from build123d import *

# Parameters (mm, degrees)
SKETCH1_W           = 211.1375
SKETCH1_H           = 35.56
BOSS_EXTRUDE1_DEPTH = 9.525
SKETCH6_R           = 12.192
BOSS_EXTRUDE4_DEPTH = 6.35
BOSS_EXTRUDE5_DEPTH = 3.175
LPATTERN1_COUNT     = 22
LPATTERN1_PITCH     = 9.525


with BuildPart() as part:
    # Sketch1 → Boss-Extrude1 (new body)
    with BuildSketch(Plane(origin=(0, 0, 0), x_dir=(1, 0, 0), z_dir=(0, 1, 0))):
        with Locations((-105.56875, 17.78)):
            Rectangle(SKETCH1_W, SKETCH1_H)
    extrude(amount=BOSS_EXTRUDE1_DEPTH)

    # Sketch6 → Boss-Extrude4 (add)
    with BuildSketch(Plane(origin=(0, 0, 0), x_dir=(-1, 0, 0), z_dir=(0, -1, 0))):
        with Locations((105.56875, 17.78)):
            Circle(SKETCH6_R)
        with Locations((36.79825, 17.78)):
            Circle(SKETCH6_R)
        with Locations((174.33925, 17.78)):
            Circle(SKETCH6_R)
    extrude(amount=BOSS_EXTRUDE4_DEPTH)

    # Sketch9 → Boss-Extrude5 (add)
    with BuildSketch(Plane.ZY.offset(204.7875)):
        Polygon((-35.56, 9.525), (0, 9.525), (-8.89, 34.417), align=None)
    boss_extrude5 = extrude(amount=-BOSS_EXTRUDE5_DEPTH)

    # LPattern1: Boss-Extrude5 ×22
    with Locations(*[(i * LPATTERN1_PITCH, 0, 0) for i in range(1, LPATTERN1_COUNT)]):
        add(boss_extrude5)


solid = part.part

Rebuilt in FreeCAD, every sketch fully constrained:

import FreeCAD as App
import Part
import Sketcher

V = App.Vector
Q = App.Units.Quantity


def add_polygon(sketch, points):
    """Adds a closed chain of lines whose ends are joined by coincident constraints."""
    first, n = sketch.GeometryCount, len(points)
    for a, b in zip(points, points[1:] + points[:1]):
        sketch.addGeometry(Part.LineSegment(App.Vector(*a, 0), App.Vector(*b, 0)), False)
    for i in range(n):
        sketch.addConstraint(Sketcher.Constraint("Coincident", first + i, 2, first + (i + 1) % n, 1))

doc = App.newDocument("Part")
body = doc.addObject("PartDesign::Body", "Body")

# Sketch on XZ plane
sketch1 = body.newObject("Sketcher::SketchObject", "Sketch")
sketch1.AttachmentSupport = (doc.getObject("XZ_Plane"), [""])
sketch1.MapMode = "FlatFace"
add_polygon(sketch1, [(-211, -36), (-211, 0), (0, 0), (0, -36)])  # lines 0-3
sketch1.addConstraint([
    Sketcher.Constraint("Vertical", 0),
    Sketcher.Constraint("Horizontal", 1),
    Sketcher.Constraint("Vertical", 2),
    Sketcher.Constraint("Horizontal", 3),
    Sketcher.Constraint("Coincident", 1, 2, -1, 1),
    Sketcher.Constraint("DistanceY", 0, 1, 0, 2, Q("1.4 in")),
    Sketcher.Constraint("DistanceX", 1, 1, 1, 2, Q("8.3125 in")),
])
pad1 = body.newObject("PartDesign::Pad", "Pad")
pad1.Profile = sketch1
pad1.Length = Q("0.375 in")
pad1.Reversed = True

# Sketch on XZ plane
sketch2 = body.newObject("Sketcher::SketchObject", "Sketch001")
sketch2.AttachmentSupport = (doc.getObject("XZ_Plane"), [""])
sketch2.MapMode = "FlatFace"
sketch2.addGeometry([
    Part.Circle(V(-106, -18, 0), V(0, 0, 1), 12),
    Part.Circle(V(-37, -18, 0), V(0, 0, 1), 12),
    Part.Circle(V(-174, -18, 0), V(0, 0, 1), 12),
], False)
sketch2.addConstraint([
    Sketcher.Constraint("Equal", 0, 1),
    Sketcher.Constraint("Equal", 1, 2),
    Sketcher.Constraint("Horizontal", 0, 3, 1, 3),
    Sketcher.Constraint("Horizontal", 1, 3, 2, 3),
    Sketcher.Constraint("Diameter", 0, Q("0.96 in")),
    Sketcher.Constraint("DistanceY", 0, 3, -1, 1, Q("0.7 in")),
    Sketcher.Constraint("DistanceX", 0, 3, -1, 1, Q("4.15625 in")),
    Sketcher.Constraint("DistanceX", 2, 3, 1, 3, Q("5.415 in")),
    Sketcher.Constraint("DistanceX", 0, 3, 1, 3, Q("2.7075 in")),
])
pad2 = body.newObject("PartDesign::Pad", "Pad001")
pad2.Profile = sketch2
pad2.Length = Q("0.25 in")

# Sketch on YZ plane
sketch3 = body.newObject("Sketcher::SketchObject", "Sketch002")
sketch3.AttachmentSupport = (doc.getObject("YZ_Plane"), [""])
sketch3.MapMode = "FlatFace"
sketch3.AttachmentOffset = App.Placement(V(0, 0, -8.0625 * 25.4), App.Rotation())
add_polygon(sketch3, [(10, -36), (10, 0), (34, -9)])  # lines 0-2
sketch3.addConstraint([
    Sketcher.Constraint("Vertical", 0),
    Sketcher.Constraint("PointOnObject", 0, 2, -1),
    Sketcher.Constraint("DistanceY", 0, 1, 0, 2, Q("1.4 in")),
    Sketcher.Constraint("DistanceY", 1, 2, -1, 1, Q("0.35 in")),
    Sketcher.Constraint("DistanceX", 0, 2, 1, 2, Q("0.98 in")),
    Sketcher.Constraint("DistanceX", -1, 1, 0, 2, Q("0.375 in")),
])
pad3 = body.newObject("PartDesign::Pad", "Pad002")
pad3.Profile = sketch3
pad3.Length = Q("0.125 in")
doc.recompute()

linearpattern = body.newObject("PartDesign::LinearPattern", "LinearPattern")
linearpattern.Originals = [pad3]
linearpattern.Direction = (doc.getObject("X_Axis"), [""])
linearpattern.Mode = "offset"
linearpattern.Offset = Q("0.375 in")
linearpattern.Occurrences = 22
body.Tip = linearpattern

doc.recompute()
